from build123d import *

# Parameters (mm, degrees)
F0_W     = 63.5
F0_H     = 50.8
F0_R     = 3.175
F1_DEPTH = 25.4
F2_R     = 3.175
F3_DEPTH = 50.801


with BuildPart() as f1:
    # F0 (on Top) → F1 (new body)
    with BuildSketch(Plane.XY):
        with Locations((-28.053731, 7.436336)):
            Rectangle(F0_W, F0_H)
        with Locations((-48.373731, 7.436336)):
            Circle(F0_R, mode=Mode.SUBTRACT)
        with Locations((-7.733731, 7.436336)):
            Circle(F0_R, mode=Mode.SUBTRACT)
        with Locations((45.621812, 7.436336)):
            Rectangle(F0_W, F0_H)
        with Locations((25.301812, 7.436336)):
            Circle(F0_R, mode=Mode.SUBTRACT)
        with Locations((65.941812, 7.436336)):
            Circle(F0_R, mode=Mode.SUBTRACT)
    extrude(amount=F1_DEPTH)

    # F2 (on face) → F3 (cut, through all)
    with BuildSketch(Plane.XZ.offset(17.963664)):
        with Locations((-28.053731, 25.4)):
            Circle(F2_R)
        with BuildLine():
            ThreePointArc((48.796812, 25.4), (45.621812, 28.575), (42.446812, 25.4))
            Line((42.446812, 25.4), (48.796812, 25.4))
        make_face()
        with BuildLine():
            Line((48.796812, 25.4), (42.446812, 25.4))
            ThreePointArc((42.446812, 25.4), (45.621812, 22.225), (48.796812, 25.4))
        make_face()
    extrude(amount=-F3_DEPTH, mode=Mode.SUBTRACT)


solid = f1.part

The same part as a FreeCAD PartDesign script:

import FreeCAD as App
import Part
import Sketcher
from FreeCAD import Vector
Q = App.Units.Quantity

doc = App.newDocument("Part")
body = doc.addObject("PartDesign::Body", "Body")
body.AllowCompound = True

sketch1 = doc.addObject("Sketcher::SketchObject", "Sketch")
body.addObject(sketch1)
sketch1.AttachmentSupport = (doc.XY_Plane, [""])
sketch1.MapMode = "FlatFace"
sketch1.addGeometry(Part.LineSegment(Vector(-59.803731, 32.836336, 0), Vector(-59.803731, -17.963664, 0)), False)
sketch1.addGeometry(Part.LineSegment(Vector(-59.803731, -17.963664, 0), Vector(3.696269, -17.963664, 0)), False)
sketch1.addGeometry(Part.LineSegment(Vector(3.696269, -17.963664, 0), Vector(3.696269, 32.836336, 0)), False)
sketch1.addGeometry(Part.LineSegment(Vector(3.696269, 32.836336, 0), Vector(-59.803731, 32.836336, 0)), False)
sketch1.addGeometry(Part.Circle(Vector(-48.373731, 7.436336, 0), Vector(0, 0, 1), 3.175), False)
sketch1.addGeometry(Part.Circle(Vector(-7.733731, 7.436336, 0), Vector(0, 0, 1), 3.175), False)
sketch1.addGeometry(Part.LineSegment(Vector(13.871812, 32.836336, 0), Vector(13.871812, -17.963664, 0)), False)
sketch1.addGeometry(Part.LineSegment(Vector(13.871812, -17.963664, 0), Vector(77.371812, -17.963664, 0)), False)
sketch1.addGeometry(Part.LineSegment(Vector(77.371812, -17.963664, 0), Vector(77.371812, 32.836336, 0)), False)
sketch1.addGeometry(Part.LineSegment(Vector(77.371812, 32.836336, 0), Vector(13.871812, 32.836336, 0)), False)
sketch1.addGeometry(Part.Circle(Vector(25.301812, 7.436336, 0), Vector(0, 0, 1), 3.175), False)
sketch1.addGeometry(Part.Circle(Vector(65.941812, 7.436336, 0), Vector(0, 0, 1), 3.175), False)
sketch1.addConstraint(Sketcher.Constraint("Coincident", 0, 2, 1, 1))
sketch1.addConstraint(Sketcher.Constraint("Coincident", 1, 2, 2, 1))
sketch1.addConstraint(Sketcher.Constraint("Coincident", 2, 2, 3, 1))
sketch1.addConstraint(Sketcher.Constraint("Coincident", 3, 2, 0, 1))
sketch1.addConstraint(Sketcher.Constraint("Coincident", 6, 2, 7, 1))
sketch1.addConstraint(Sketcher.Constraint("Coincident", 7, 2, 8, 1))
sketch1.addConstraint(Sketcher.Constraint("Coincident", 8, 2, 9, 1))
sketch1.addConstraint(Sketcher.Constraint("Coincident", 9, 2, 6, 1))
sketch1.addConstraint(Sketcher.Constraint("Vertical", 0))
sketch1.addConstraint(Sketcher.Constraint("Horizontal", 1))
sketch1.addConstraint(Sketcher.Constraint("Vertical", 2))
sketch1.addConstraint(Sketcher.Constraint("Horizontal", 3))
sketch1.addConstraint(Sketcher.Constraint("Vertical", 6))
sketch1.addConstraint(Sketcher.Constraint("Horizontal", 7))
sketch1.addConstraint(Sketcher.Constraint("Vertical", 8))
sketch1.addConstraint(Sketcher.Constraint("Horizontal", 9))
sketch1.addConstraint(Sketcher.Constraint("Equal", 4, 5))
sketch1.addConstraint(Sketcher.Constraint("Equal", 5, 10))
sketch1.addConstraint(Sketcher.Constraint("Equal", 10, 11))
sketch1.addConstraint(Sketcher.Constraint("Horizontal", 4, 3, 5, 3))
sketch1.addConstraint(Sketcher.Constraint("Horizontal", 5, 3, 10, 3))
sketch1.addConstraint(Sketcher.Constraint("Horizontal", 10, 3, 11, 3))
sketch1.addConstraint(Sketcher.Constraint("Horizontal", 1, 2, 6, 2))
sketch1.addConstraint(Sketcher.Constraint("Horizontal", 3, 2, 8, 2))
sketch1.addConstraint(Sketcher.Constraint("Equal", 3, 7))
sketch1.addConstraint(Sketcher.Constraint("Diameter", 4, Q("0.25 in")))
sketch1.addConstraint(Sketcher.Constraint("DistanceY", 0, 2, 0, 1, Q("2 in")))
sketch1.addConstraint(Sketcher.Constraint("DistanceX", 1, 1, 1, 2, Q("2.5 in")))
sketch1.addConstraint(Sketcher.Constraint("DistanceY", 0, 2, 4, 3, Q("1 in")))
sketch1.addConstraint(Sketcher.Constraint("DistanceX", 4, 3, 5, 3, Q("1.6 in")))
sketch1.addConstraint(Sketcher.Constraint("DistanceX", 10, 3, 11, 3, Q("1.6 in")))
sketch1.addConstraint(Sketcher.Constraint("DistanceX", 0, 2, 4, 3, Q("0.45 in")))
sketch1.addConstraint(Sketcher.Constraint("DistanceX", 6, 2, 10, 3, Q("0.45 in")))
sketch1.addConstraint(Sketcher.Constraint("DistanceX", 4, 3, -1, 1, Q("48.373731 mm")))
sketch1.addConstraint(Sketcher.Constraint("DistanceX", -1, 1, 11, 3, Q("65.941812 mm")))
sketch1.addConstraint(Sketcher.Constraint("DistanceY", -1, 1, 4, 3, Q("7.436336 mm")))
pad1 = doc.addObject("PartDesign::Pad", "Pad")
body.addObject(pad1)
pad1.Profile = sketch1
pad1.Length = Q("1 in")

sketch2 = doc.addObject("Sketcher::SketchObject", "Sketch001")
body.addObject(sketch2)
sketch2.AttachmentSupport = (doc.XZ_Plane, [""])
sketch2.MapMode = "FlatFace"
sketch2.AttachmentOffset = App.Placement(Vector(0, 0, 17.963664), App.Rotation())
sketch2.addGeometry(Part.Circle(Vector(-28.053731, 25.4, 0), Vector(0, 0, 1), 3.175), False)
sketch2.addGeometry(Part.Circle(Vector(45.621812, 25.4, 0), Vector(0, 0, 1), 3.175), False)
sketch2.addConstraint(Sketcher.Constraint("Equal", 0, 1))
sketch2.addConstraint(Sketcher.Constraint("Horizontal", 0, 3, 1, 3))
sketch2.addConstraint(Sketcher.Constraint("Diameter", 0, Q("0.25 in")))
sketch2.addConstraint(Sketcher.Constraint("DistanceY", -1, 1, 0, 3, Q("1 in")))
sketch2.addConstraint(Sketcher.Constraint("DistanceX", 0, 3, -1, 1, Q("28.053731 mm")))
sketch2.addConstraint(Sketcher.Constraint("DistanceX", -1, 1, 1, 3, Q("45.621812 mm")))
pocket1 = doc.addObject("PartDesign::Pocket", "Pocket")
body.addObject(pocket1)
pocket1.Profile = sketch2
pocket1.Type = "ThroughAll"

doc.recompute()
